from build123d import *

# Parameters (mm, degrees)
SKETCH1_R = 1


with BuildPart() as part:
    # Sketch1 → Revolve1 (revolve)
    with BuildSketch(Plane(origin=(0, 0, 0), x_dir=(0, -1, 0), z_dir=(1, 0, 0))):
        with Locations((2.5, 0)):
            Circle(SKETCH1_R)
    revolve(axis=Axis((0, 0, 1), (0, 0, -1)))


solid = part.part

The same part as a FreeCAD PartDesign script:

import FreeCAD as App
import Part
import Sketcher

doc = App.newDocument("Part")
body = doc.addObject("PartDesign::Body", "Body")

# Sketch on YZ plane
sketch1 = body.newObject("Sketcher::SketchObject", "Sketch")
sketch1.AttachmentSupport = (doc.getObject("YZ_Plane"), [""])
sketch1.MapMode = "FlatFace"
sketch1.addGeometry(Part.Circle(App.Vector(-2.5, 0, 0), App.Vector(0, 0, 1), 1), False)
sketch1.addConstraint([
    Sketcher.Constraint("PointOnObject", 0, 3, -1),
    Sketcher.Constraint("Diameter", 0, 2.0),
    Sketcher.Constraint("DistanceX", 0, 3, -1, 1, 2.5),
])
revolution = body.newObject("PartDesign::Revolution", "Revolution")
revolution.Profile = sketch1
revolution.ReferenceAxis = (sketch1, ["V_Axis"])
revolution.Angle = 360

doc.recompute()
